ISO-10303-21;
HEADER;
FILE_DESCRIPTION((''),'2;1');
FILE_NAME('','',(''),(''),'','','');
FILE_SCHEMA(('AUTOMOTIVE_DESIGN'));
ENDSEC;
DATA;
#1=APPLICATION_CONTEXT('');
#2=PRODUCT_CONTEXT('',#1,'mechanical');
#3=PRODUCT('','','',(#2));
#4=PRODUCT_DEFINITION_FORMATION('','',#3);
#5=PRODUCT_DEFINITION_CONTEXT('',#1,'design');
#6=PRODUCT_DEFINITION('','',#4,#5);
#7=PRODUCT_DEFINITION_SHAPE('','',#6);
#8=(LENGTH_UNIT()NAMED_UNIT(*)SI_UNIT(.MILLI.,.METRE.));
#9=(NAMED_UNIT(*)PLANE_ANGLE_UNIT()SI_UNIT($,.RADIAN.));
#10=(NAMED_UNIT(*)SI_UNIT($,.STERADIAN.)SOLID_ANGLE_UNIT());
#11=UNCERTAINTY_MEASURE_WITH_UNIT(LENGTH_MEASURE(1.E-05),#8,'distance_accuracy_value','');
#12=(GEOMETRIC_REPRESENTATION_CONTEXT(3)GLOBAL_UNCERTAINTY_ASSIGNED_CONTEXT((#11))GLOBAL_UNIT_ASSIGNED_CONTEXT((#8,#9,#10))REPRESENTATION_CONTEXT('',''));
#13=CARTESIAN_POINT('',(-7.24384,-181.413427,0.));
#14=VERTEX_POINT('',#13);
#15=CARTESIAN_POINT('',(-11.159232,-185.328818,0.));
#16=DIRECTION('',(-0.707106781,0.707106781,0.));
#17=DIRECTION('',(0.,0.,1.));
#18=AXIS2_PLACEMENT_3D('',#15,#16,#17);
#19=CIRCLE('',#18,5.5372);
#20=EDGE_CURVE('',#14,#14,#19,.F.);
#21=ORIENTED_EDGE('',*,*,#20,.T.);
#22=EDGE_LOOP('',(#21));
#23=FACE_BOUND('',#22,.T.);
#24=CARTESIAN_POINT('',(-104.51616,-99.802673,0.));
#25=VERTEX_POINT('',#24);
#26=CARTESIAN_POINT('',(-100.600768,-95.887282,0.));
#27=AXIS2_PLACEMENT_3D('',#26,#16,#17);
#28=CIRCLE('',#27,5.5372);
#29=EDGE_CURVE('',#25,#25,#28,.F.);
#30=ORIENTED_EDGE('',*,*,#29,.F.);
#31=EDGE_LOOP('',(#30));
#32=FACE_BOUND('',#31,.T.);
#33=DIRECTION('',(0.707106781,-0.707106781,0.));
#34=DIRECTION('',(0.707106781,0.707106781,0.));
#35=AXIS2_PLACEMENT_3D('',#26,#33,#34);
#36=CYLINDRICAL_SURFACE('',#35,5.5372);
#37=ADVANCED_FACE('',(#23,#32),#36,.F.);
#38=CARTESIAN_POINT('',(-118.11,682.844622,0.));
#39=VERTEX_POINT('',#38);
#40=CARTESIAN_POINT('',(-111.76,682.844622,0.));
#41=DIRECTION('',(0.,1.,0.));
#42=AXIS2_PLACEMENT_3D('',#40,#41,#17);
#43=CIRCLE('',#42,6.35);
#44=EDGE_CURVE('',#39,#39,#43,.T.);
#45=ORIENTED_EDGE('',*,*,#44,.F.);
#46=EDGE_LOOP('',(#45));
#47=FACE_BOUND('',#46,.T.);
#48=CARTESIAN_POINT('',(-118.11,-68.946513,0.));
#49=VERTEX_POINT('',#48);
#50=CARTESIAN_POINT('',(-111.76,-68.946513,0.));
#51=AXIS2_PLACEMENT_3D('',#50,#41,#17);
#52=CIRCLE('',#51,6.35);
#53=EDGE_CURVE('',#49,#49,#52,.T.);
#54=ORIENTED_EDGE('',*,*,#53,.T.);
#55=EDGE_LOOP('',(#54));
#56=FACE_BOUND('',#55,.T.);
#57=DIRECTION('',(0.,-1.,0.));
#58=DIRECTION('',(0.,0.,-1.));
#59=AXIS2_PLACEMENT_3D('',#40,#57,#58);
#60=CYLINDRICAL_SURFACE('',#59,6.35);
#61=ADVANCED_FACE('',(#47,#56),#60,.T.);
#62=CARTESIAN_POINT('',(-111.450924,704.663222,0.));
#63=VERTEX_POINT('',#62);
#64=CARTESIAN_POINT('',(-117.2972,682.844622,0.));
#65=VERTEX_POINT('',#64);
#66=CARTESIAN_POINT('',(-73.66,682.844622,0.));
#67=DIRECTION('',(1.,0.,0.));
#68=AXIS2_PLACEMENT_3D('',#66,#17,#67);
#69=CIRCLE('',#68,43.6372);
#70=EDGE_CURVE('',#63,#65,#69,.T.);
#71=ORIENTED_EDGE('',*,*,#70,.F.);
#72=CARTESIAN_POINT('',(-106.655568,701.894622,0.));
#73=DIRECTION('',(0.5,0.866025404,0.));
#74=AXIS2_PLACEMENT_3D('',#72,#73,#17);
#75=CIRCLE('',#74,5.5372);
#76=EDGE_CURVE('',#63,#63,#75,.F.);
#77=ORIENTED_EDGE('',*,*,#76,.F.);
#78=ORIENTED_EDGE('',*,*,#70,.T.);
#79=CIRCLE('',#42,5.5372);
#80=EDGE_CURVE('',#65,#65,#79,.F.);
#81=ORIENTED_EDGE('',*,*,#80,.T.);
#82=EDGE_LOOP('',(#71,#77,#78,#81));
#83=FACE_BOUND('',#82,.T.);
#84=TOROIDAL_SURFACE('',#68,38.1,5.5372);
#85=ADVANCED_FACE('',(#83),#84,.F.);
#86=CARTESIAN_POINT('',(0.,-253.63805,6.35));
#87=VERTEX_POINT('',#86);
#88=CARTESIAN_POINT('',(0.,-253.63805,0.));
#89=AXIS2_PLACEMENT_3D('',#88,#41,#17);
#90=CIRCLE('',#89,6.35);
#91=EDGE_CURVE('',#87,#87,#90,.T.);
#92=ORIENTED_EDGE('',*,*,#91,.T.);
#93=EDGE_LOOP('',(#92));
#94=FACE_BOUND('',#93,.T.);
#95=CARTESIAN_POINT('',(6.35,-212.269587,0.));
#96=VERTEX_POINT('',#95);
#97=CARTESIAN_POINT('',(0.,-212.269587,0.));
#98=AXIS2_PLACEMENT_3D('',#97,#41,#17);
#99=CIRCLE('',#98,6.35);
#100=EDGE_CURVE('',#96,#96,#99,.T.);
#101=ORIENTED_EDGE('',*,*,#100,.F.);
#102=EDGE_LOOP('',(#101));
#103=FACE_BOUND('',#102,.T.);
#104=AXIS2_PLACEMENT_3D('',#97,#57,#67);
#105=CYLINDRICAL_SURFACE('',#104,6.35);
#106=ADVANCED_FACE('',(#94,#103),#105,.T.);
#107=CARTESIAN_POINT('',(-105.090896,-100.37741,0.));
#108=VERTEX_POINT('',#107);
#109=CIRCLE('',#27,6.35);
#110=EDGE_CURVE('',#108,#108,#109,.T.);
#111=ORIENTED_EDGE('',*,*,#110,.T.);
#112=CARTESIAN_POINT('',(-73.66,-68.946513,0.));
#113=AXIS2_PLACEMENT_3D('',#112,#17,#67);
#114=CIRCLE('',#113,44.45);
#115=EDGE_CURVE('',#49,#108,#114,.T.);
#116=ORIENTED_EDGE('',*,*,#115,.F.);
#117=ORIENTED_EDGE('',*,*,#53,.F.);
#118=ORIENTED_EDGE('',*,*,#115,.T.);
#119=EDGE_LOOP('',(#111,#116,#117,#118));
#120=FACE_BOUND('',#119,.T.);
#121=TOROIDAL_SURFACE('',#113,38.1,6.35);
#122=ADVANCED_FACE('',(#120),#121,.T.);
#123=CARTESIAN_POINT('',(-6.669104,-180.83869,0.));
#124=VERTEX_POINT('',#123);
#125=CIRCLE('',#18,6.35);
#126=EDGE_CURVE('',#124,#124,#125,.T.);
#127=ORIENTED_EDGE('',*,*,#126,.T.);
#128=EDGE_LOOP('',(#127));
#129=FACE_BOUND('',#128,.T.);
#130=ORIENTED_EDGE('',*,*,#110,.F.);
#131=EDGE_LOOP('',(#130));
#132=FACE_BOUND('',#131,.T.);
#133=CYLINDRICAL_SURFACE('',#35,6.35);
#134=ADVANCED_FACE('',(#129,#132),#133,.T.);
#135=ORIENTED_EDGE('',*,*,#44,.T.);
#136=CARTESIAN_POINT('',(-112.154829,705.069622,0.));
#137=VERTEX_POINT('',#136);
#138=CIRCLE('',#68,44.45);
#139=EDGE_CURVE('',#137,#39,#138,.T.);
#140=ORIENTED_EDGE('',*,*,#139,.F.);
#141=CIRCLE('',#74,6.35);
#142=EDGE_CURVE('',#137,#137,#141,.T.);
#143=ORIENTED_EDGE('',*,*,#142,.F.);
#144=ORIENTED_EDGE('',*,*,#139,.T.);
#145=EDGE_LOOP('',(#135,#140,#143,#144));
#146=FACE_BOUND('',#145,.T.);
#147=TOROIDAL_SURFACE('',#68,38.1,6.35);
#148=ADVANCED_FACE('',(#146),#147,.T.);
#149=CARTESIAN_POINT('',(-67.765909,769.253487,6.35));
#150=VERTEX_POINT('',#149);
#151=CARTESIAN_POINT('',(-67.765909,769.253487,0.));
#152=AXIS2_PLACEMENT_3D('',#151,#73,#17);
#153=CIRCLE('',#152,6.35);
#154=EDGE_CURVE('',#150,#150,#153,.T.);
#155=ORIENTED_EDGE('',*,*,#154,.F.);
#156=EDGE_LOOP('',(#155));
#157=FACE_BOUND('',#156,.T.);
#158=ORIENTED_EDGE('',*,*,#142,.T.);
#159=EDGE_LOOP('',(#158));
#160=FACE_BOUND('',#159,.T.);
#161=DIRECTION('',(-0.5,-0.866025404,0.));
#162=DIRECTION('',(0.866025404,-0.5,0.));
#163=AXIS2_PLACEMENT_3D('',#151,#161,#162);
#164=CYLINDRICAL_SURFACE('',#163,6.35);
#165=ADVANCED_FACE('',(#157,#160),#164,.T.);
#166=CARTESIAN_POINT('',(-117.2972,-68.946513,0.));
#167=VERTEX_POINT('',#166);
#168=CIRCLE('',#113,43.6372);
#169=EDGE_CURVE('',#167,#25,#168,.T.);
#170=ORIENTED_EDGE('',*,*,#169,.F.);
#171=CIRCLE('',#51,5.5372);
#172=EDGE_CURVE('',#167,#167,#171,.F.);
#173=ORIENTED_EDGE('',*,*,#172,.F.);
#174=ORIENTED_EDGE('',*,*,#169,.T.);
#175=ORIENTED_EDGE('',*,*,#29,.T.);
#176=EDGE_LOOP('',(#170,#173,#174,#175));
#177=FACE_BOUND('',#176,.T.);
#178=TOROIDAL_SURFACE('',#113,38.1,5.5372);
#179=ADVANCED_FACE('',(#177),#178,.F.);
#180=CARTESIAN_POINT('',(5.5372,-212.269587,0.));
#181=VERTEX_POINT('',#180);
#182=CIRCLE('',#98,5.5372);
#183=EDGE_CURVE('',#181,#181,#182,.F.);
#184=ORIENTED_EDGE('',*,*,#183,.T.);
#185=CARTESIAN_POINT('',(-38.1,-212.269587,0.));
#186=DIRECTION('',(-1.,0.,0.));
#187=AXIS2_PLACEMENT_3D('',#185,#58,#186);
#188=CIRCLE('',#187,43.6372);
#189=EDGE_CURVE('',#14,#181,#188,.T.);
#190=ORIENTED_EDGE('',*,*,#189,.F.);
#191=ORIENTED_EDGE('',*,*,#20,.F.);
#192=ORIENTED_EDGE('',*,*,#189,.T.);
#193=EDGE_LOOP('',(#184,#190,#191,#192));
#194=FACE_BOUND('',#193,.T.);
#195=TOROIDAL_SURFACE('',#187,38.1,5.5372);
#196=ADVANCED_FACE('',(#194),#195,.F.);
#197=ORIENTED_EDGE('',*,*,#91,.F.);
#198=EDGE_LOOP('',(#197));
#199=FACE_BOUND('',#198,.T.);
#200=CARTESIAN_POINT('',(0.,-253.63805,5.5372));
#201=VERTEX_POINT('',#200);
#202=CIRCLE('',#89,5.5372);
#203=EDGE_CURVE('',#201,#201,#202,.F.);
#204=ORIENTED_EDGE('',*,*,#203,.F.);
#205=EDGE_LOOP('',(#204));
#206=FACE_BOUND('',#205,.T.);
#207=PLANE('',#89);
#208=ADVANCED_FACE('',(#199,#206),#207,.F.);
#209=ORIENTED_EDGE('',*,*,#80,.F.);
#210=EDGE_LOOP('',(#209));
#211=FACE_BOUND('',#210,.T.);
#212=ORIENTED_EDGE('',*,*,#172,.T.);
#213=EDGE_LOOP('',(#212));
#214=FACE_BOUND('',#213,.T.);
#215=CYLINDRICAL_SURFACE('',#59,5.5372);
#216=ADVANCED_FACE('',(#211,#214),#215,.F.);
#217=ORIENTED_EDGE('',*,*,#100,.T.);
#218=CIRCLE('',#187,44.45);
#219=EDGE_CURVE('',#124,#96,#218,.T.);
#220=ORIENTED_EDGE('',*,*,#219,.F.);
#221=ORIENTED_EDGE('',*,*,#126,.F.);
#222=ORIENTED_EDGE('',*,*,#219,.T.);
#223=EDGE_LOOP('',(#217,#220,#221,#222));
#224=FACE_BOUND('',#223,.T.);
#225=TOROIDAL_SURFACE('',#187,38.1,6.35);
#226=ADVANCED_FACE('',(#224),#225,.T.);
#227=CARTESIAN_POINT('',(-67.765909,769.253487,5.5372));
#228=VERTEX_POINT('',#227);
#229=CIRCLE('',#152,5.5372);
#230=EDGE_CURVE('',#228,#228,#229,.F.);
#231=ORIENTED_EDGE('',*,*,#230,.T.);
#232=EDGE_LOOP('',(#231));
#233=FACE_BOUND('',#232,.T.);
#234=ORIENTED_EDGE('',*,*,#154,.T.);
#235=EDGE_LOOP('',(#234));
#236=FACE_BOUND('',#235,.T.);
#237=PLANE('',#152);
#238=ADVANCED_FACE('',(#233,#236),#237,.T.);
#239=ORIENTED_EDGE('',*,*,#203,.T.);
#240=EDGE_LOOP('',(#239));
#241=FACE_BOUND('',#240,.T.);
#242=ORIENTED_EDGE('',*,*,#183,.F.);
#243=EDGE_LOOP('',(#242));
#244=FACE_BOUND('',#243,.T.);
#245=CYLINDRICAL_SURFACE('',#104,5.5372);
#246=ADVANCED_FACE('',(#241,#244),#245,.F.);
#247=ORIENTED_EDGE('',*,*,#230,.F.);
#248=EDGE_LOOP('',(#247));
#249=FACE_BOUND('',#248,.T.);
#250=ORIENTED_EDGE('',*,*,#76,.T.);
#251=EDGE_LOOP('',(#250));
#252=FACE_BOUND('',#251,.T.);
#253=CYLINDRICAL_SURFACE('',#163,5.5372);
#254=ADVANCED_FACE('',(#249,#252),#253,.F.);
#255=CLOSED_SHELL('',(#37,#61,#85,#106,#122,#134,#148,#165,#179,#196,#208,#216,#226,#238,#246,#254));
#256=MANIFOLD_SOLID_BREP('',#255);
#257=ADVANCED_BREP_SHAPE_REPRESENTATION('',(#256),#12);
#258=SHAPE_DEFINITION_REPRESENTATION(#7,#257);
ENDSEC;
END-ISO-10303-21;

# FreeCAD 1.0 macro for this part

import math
import FreeCAD as App
import Part
import Sketcher
Q = App.Units.Quantity

doc = App.newDocument("Part")
body = doc.addObject("PartDesign::Body", "Body")

sketch1 = doc.addObject("Sketcher::SketchObject", "Sketch")
body.addObject(sketch1)
sketch1.AttachmentSupport = (doc.XZ_Plane, [""])
sketch1.MapMode = "FlatFace"
sketch1.addGeometry(Part.Circle(App.Vector(-111.76, 0, 0), App.Vector(0, 0, 1), 6.35), False)
sketch1.addGeometry(Part.Circle(App.Vector(-111.76, 0, 0), App.Vector(0, 0, 1), 5.5372), False)
sketch1.addConstraint(Sketcher.Constraint("Coincident", 1, 3, 0, 3))
sketch1.addConstraint(Sketcher.Constraint("PointOnObject", 0, 3, -1))
sketch1.addConstraint(Sketcher.Constraint("Diameter", 0, Q("0.5 in")))
sketch1.addConstraint(Sketcher.Constraint("Diameter", 1, Q("0.436 in")))
sketch1.addConstraint(Sketcher.Constraint("DistanceX", 0, 3, -1, 1, Q("4.4 in")))

sketch2 = doc.addObject("Sketcher::SketchObject", "Sketch001")
body.addObject(sketch2)
sketch2.AttachmentSupport = (doc.XY_Plane, [""])
sketch2.MapMode = "FlatFace"
sketch2.addGeometry(Part.LineSegment(App.Vector(0, -253.63805, 0), App.Vector(0, -212.269587, 0)), False)
sketch2.addGeometry(Part.ArcOfCircle(Part.Circle(App.Vector(-38.1, -212.269587, 0), App.Vector(0, 0, 1), 38.1), math.radians(0), math.radians(45)), False)
sketch2.addGeometry(Part.LineSegment(App.Vector(-11.159232, -185.328818, 0), App.Vector(-100.600768, -95.887282, 0)), False)
sketch2.addGeometry(Part.ArcOfCircle(Part.Circle(App.Vector(-73.66, -68.946513, 0), App.Vector(0, 0, 1), 38.1), math.radians(180), math.radians(225)), False)
sketch2.addGeometry(Part.LineSegment(App.Vector(-111.76, -68.946513, 0), App.Vector(-111.76, 682.844622, 0)), False)
sketch2.addGeometry(Part.ArcOfCircle(Part.Circle(App.Vector(-73.66, 682.844622, 0), App.Vector(0, 0, 1), 38.1), math.radians(150), math.radians(180)), False)
sketch2.addGeometry(Part.LineSegment(App.Vector(-106.655568, 701.894622, 0), App.Vector(-67.765909, 769.253487, 0)), False)
sketch2.addConstraint(Sketcher.Constraint("Tangent", 0, 2, 1, 1))
sketch2.addConstraint(Sketcher.Constraint("Tangent", 1, 2, 2, 1))
sketch2.addConstraint(Sketcher.Constraint("Tangent", 2, 2, 3, 2))
sketch2.addConstraint(Sketcher.Constraint("Tangent", 3, 1, 4, 1))
sketch2.addConstraint(Sketcher.Constraint("Tangent", 4, 2, 5, 2))
sketch2.addConstraint(Sketcher.Constraint("Tangent", 5, 1, 6, 1))
sketch2.addConstraint(Sketcher.Constraint("Vertical", 0))
sketch2.addConstraint(Sketcher.Constraint("Vertical", 4))
sketch2.addConstraint(Sketcher.Constraint("Equal", 1, 3))
sketch2.addConstraint(Sketcher.Constraint("Equal", 3, 5))
sketch2.addConstraint(Sketcher.Constraint("PointOnObject", 0, 1, -2))
sketch2.addConstraint(Sketcher.Constraint("Radius", 1, Q("1.5 in")))
sketch2.addConstraint(Sketcher.Constraint("Angle", 2, Q("135 deg")))
sketch2.addConstraint(Sketcher.Constraint("Angle", 6, Q("60 deg")))
sketch2.addConstraint(Sketcher.Constraint("DistanceY", 3, 3, 6, 2, Q("33 in")))
sketch2.addConstraint(Sketcher.Constraint("DistanceX", 3, 3, -1, 1, Q("2.9 in")))
sketch2.addConstraint(Sketcher.Constraint("DistanceY", 0, 1, 0, 2, 41.368463))
sketch2.addConstraint(Sketcher.Constraint("DistanceY", 4, 1, 4, 2, 751.791136))
sketch2.addConstraint(Sketcher.Constraint("DistanceY", 0, 1, -1, 1, 253.63805))
doc.recompute()

additivepipe = doc.addObject("PartDesign::AdditivePipe", "AdditivePipe")
body.addObject(additivepipe)
additivepipe.Profile = sketch1
additivepipe.Spine = (sketch2, ["Edge1", "Edge2", "Edge3", "Edge4", "Edge5", "Edge6", "Edge7"])

doc.recompute()
